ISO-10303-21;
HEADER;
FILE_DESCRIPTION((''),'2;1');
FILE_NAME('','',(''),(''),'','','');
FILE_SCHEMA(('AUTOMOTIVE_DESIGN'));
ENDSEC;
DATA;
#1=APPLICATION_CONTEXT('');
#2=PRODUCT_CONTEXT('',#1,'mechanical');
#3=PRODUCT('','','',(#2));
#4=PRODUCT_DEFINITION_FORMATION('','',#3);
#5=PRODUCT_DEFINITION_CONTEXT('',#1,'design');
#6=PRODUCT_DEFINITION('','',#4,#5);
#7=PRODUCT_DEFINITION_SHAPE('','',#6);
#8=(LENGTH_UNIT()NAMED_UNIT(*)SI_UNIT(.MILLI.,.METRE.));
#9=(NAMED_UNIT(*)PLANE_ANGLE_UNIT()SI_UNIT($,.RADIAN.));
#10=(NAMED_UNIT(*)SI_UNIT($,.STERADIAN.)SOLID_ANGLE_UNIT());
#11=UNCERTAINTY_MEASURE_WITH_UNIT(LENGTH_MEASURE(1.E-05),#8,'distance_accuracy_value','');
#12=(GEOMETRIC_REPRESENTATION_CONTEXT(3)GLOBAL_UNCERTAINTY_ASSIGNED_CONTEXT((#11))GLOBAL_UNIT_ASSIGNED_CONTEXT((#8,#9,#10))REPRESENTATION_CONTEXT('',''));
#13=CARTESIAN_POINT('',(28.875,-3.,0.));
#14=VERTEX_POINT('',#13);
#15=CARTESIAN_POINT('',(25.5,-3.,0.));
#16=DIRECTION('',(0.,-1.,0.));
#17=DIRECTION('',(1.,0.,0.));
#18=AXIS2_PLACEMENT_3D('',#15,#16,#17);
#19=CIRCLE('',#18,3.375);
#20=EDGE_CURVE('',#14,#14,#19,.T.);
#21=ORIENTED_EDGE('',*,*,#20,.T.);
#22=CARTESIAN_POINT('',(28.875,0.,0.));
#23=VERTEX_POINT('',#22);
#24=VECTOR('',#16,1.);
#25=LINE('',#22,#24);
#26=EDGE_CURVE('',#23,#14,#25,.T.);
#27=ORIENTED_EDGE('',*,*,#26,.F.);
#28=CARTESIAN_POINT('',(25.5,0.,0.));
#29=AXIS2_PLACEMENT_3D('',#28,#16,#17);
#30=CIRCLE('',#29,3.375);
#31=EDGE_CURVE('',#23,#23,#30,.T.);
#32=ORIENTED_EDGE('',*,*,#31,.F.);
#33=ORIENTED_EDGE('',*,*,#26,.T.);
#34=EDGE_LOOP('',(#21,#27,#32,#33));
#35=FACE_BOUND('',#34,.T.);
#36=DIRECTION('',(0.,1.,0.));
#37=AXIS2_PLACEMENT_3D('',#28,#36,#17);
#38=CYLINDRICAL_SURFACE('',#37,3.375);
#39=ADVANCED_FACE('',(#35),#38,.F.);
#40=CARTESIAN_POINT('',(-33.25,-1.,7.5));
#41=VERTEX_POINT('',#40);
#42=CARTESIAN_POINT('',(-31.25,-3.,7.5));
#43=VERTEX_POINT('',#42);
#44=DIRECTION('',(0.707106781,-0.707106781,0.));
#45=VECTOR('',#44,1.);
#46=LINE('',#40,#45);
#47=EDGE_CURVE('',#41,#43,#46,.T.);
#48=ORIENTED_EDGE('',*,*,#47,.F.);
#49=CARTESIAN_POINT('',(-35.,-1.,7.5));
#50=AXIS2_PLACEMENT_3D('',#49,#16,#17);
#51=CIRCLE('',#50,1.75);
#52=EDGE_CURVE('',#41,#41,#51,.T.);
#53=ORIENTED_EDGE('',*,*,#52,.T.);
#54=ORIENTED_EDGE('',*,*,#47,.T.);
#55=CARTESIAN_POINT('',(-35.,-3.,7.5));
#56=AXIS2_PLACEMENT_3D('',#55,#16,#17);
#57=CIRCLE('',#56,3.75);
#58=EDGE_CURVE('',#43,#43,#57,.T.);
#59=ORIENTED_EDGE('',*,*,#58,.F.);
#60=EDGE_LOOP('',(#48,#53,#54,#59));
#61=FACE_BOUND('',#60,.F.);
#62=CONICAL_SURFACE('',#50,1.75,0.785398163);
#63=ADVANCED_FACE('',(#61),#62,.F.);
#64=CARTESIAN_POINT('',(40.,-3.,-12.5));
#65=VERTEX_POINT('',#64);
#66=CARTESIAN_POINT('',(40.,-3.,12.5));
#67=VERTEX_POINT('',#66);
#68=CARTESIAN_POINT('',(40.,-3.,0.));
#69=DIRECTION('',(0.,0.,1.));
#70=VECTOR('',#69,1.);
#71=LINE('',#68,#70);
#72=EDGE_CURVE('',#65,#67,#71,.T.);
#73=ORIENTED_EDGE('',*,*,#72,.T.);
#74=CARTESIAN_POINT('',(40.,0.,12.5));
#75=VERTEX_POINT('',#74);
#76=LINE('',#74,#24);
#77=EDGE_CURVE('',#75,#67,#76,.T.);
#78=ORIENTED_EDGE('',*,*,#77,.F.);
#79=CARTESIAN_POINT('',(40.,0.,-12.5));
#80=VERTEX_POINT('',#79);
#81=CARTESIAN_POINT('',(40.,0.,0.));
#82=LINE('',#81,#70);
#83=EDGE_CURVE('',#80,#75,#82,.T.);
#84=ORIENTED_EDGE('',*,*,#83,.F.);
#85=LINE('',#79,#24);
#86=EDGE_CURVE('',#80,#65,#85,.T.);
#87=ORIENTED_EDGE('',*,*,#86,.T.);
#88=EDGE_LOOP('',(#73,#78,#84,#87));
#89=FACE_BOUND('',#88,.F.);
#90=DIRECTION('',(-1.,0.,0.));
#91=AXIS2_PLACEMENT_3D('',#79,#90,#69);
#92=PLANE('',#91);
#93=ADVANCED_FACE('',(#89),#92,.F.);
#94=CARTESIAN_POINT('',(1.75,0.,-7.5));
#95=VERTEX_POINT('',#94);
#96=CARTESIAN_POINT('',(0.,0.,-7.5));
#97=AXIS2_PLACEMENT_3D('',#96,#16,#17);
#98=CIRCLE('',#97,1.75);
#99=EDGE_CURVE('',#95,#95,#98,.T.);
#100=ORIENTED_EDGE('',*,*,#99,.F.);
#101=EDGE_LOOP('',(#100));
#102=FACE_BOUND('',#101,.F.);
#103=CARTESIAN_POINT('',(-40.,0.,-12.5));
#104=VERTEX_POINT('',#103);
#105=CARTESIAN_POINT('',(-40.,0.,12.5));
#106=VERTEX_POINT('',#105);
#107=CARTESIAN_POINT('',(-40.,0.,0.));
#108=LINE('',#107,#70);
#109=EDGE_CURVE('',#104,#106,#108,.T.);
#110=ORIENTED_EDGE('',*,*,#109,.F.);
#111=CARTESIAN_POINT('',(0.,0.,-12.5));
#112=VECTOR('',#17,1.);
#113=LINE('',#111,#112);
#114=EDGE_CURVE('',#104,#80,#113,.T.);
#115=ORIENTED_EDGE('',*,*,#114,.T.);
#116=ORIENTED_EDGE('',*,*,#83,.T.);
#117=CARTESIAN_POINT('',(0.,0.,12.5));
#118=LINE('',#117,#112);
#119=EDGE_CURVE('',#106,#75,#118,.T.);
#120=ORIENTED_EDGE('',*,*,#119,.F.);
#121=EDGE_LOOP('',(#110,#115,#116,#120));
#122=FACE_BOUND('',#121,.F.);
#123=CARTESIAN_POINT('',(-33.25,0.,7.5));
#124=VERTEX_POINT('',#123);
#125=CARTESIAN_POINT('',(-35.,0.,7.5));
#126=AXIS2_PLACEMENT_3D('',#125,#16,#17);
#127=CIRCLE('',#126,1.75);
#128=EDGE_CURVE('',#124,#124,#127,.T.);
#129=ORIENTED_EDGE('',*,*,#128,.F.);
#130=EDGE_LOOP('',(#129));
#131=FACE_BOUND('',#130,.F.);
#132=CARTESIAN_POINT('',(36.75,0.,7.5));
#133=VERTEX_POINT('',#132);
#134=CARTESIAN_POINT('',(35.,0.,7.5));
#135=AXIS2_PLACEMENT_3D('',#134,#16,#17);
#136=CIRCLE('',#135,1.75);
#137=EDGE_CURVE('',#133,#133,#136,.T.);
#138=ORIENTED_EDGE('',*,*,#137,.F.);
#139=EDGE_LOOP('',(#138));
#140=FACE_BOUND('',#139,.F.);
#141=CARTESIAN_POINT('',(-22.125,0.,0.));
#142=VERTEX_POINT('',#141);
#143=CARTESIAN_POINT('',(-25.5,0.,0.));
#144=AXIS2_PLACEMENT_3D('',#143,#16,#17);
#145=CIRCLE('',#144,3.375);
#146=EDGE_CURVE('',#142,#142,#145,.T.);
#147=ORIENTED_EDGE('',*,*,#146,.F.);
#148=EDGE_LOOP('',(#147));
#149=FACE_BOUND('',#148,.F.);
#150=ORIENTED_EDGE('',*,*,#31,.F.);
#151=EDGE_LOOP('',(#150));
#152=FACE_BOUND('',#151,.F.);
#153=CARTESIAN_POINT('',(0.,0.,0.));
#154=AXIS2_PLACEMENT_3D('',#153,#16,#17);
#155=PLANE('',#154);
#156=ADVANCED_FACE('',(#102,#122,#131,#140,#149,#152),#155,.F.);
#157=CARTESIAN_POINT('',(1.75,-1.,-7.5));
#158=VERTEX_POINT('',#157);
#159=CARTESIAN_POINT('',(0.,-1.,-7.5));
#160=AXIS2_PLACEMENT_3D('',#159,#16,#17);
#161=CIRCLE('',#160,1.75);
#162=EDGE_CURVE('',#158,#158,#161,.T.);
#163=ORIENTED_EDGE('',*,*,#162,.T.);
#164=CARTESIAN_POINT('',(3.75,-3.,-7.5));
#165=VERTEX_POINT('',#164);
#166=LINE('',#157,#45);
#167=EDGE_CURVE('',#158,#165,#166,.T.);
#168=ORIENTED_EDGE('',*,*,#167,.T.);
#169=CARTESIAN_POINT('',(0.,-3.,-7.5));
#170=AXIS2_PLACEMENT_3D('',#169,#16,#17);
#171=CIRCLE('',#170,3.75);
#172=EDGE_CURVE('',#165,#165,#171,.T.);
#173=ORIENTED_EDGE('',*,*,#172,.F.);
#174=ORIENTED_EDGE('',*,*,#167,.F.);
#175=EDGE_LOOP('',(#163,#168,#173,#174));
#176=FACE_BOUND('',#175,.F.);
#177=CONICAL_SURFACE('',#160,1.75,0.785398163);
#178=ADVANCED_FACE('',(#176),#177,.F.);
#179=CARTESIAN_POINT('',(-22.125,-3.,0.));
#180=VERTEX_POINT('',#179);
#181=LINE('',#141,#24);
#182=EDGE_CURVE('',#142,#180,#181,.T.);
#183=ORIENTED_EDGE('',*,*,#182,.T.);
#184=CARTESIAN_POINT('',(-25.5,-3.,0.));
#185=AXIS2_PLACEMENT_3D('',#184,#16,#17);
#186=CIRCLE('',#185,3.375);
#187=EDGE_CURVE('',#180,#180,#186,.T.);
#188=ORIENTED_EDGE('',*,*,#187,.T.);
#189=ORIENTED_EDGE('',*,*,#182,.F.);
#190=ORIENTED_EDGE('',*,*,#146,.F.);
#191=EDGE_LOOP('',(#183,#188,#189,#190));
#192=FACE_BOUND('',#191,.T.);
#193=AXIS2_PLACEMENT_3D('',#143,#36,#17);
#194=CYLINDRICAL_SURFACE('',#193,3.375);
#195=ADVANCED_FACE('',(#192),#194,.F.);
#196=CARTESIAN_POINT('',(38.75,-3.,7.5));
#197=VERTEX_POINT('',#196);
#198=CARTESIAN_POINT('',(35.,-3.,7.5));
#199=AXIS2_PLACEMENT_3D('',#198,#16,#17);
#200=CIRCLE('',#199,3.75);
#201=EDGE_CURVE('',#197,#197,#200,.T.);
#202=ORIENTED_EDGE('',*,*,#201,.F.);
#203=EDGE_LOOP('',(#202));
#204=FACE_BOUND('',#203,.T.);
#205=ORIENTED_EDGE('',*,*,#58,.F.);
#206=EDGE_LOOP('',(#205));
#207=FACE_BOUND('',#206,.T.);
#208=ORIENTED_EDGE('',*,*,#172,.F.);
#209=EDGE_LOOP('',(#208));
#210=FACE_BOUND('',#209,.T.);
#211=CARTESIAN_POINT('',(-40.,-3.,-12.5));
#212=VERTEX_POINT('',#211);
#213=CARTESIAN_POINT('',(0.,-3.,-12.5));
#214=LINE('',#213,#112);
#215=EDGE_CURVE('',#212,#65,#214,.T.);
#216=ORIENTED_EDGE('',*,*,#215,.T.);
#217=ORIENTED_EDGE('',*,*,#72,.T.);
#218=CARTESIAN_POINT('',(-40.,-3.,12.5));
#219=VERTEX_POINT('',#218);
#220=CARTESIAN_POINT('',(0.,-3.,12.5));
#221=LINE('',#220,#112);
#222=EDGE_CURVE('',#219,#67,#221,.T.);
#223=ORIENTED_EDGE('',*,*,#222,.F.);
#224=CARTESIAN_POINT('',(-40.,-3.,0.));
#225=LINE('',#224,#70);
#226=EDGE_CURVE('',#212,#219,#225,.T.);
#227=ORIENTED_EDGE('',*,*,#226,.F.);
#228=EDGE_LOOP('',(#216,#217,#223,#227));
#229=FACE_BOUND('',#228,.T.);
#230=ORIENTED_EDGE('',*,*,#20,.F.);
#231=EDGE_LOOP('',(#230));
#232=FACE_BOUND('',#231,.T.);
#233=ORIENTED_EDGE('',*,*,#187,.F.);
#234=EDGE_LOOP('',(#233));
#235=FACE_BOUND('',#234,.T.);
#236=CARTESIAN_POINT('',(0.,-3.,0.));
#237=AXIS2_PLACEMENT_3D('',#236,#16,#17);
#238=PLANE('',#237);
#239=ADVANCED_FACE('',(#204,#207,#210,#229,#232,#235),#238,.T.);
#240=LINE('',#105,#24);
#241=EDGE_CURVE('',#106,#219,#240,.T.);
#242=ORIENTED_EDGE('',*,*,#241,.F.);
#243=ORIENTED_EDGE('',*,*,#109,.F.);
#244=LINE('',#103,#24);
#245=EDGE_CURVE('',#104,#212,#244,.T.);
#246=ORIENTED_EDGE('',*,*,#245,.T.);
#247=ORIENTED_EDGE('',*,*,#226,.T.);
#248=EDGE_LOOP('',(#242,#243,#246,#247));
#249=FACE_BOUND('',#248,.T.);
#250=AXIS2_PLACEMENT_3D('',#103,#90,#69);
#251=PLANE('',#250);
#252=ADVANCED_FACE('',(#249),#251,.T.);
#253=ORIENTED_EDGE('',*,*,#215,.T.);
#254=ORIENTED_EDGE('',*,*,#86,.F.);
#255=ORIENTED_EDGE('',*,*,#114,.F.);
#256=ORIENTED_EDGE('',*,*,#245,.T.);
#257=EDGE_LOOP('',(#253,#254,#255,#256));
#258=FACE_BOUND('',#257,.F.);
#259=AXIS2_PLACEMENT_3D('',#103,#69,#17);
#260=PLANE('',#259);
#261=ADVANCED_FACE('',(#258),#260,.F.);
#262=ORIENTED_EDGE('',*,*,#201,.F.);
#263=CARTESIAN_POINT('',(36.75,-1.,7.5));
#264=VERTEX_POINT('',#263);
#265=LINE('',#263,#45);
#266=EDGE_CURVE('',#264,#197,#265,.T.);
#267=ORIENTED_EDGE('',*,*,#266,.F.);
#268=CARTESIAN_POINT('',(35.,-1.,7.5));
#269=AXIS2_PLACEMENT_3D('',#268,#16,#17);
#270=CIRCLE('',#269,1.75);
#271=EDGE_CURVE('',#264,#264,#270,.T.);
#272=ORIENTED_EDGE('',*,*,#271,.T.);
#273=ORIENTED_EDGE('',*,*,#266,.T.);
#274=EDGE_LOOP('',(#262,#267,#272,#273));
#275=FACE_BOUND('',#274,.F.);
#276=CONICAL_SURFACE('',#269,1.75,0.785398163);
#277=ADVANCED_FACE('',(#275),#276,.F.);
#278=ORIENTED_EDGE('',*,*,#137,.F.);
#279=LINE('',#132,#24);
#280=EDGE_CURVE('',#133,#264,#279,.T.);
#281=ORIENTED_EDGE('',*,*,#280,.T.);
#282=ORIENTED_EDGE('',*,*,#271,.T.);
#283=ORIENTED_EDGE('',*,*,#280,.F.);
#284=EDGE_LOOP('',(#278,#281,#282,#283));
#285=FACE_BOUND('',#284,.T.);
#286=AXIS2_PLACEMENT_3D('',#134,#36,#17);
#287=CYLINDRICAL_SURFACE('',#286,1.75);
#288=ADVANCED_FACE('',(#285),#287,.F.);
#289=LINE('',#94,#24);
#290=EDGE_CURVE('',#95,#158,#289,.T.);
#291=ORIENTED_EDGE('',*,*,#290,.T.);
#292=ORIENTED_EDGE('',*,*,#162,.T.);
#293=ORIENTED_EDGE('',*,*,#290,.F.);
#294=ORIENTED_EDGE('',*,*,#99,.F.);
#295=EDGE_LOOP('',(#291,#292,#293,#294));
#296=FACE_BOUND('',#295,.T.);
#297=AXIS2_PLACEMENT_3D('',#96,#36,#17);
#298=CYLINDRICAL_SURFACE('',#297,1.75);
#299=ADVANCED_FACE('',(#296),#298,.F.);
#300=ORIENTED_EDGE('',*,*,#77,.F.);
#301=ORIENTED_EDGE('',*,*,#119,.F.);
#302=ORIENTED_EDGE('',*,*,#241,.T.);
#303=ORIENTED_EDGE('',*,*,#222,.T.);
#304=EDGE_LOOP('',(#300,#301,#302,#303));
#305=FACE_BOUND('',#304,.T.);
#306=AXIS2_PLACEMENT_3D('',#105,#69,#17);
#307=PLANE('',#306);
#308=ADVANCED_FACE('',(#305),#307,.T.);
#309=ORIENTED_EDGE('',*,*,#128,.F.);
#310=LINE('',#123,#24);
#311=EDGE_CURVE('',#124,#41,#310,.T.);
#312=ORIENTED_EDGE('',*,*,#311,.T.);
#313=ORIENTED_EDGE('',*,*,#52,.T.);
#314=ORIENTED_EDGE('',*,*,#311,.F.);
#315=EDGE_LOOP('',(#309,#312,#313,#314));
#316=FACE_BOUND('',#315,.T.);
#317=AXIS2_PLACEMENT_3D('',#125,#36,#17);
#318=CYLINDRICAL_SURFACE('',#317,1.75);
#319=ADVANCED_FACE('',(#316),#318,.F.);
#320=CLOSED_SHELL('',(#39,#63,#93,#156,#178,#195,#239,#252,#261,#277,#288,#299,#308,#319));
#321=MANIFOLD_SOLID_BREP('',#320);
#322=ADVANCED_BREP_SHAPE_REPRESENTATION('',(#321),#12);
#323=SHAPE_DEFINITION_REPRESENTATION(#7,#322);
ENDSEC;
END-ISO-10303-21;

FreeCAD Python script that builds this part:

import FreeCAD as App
import Part
import Sketcher

V = App.Vector
Q = App.Units.Quantity


def edges_at(feature, points):
    """Names of the edges that pass closest to the given points."""
    edges = feature.Shape.Edges
    near = lambda p: min(range(len(edges)), key=lambda i: edges[i].distToShape(Part.Vertex(*p))[0])
    return sorted({f"Edge{near(p) + 1}" for p in points})

doc = App.newDocument("Part")
params = doc.addObject("Spreadsheet::Sheet", "Params")
for row, (alias, value) in enumerate([
    ("sketch1_diameter", "3.5 mm"),
    ("sketch1_diameter2", "6.75 mm"),
    ("sketch1_width", "80 mm"),
    ("sketch1_height", "25 mm"),
    ("pad1_length", "3 mm"),
    ("chamfer_size", "2 mm"),
], start=1):
    params.set(f"A{row}", alias)
    params.set(f"B{row}", "=" + value)
    params.setAlias(f"B{row}", alias)

body = doc.addObject("PartDesign::Body", "Body")

# Sketch on XZ plane
sketch1 = body.newObject("Sketcher::SketchObject", "Sketch")
sketch1.AttachmentSupport = (doc.getObject("XZ_Plane"), [""])
sketch1.MapMode = "FlatFace"
sketch1.addGeometry([
    Part.LineSegment(V(-40, 12.5, 0), V(-40, -12.5, 0)),  # 0
    Part.LineSegment(V(-40, -12.5, 0), V(40, -12.5, 0)),  # 1
    Part.LineSegment(V(40, -12.5, 0), V(40, 12.5, 0)),  # 2
    Part.LineSegment(V(40, 12.5, 0), V(-40, 12.5, 0)),  # 3
    Part.Circle(V(0, -7.5, 0), V(0, 0, 1), 1.8),  # 4
    Part.Circle(V(-25.5, 0, 0), V(0, 0, 1), 3.4),  # 5
    Part.Circle(V(-35, 7.5, 0), V(0, 0, 1), 1.8),  # 6
    Part.Circle(V(25.5, 0, 0), V(0, 0, 1), 3.4),  # 7
    Part.Circle(V(35, 7.5, 0), V(0, 0, 1), 1.8),  # 8
], False)
sketch1.addConstraint([
    Sketcher.Constraint("Coincident", 0, 2, 1, 1),
    Sketcher.Constraint("Coincident", 1, 2, 2, 1),
    Sketcher.Constraint("Coincident", 2, 2, 3, 1),
    Sketcher.Constraint("Coincident", 3, 2, 0, 1),
    Sketcher.Constraint("Vertical", 0),
    Sketcher.Constraint("Horizontal", 1),
    Sketcher.Constraint("Vertical", 2),
    Sketcher.Constraint("Horizontal", 3),
    Sketcher.Constraint("Equal", 4, 6),
    Sketcher.Constraint("Equal", 5, 7),
    Sketcher.Constraint("Equal", 6, 8),
    Sketcher.Constraint("Symmetric", 5, 3, 7, 3, -1, 1),
    Sketcher.Constraint("Symmetric", 0, 2, 2, 2, -1, 1),
    Sketcher.Constraint("Symmetric", 6, 3, 8, 3, -2),
    Sketcher.Constraint("PointOnObject", 4, 3, -2),
    Sketcher.Constraint("PointOnObject", 5, 3, -1),
    Sketcher.Constraint("Diameter", 4, Q("3.5 mm")),
    Sketcher.Constraint("Diameter", 5, Q("6.75 mm")),
    Sketcher.Constraint("DistanceX", 1, 1, 1, 2, Q("80 mm")),
    Sketcher.Constraint("DistanceY", 0, 2, 0, 1, Q("25 mm")),
    Sketcher.Constraint("DistanceX", 6, 3, -1, 1, Q("35 mm")),
    Sketcher.Constraint("DistanceY", 4, 3, 6, 3, Q("15 mm")),
    Sketcher.Constraint("DistanceX", 5, 3, 7, 3, Q("51 mm")),
    Sketcher.Constraint("DistanceY", 0, 2, 6, 3, Q("20 mm")),
])
sketch1.setExpression("Constraints[16]", "Params.sketch1_diameter")
sketch1.setExpression("Constraints[17]", "Params.sketch1_diameter2")
sketch1.setExpression("Constraints[18]", "Params.sketch1_width")
sketch1.setExpression("Constraints[19]", "Params.sketch1_height")
pad1 = body.newObject("PartDesign::Pad", "Pad")
pad1.Profile = sketch1
pad1.setExpression("Length", "Params.pad1_length")
doc.recompute()

chamfer = body.newObject("PartDesign::Chamfer", "Chamfer")
chamfer.Base = (pad1, edges_at(pad1, [(-36.75, -3, 7.5), (-1.75, -3, -7.5), (33.25, -3, 7.5)]))
chamfer.setExpression("Size", "Params.chamfer_size")

doc.recompute()
